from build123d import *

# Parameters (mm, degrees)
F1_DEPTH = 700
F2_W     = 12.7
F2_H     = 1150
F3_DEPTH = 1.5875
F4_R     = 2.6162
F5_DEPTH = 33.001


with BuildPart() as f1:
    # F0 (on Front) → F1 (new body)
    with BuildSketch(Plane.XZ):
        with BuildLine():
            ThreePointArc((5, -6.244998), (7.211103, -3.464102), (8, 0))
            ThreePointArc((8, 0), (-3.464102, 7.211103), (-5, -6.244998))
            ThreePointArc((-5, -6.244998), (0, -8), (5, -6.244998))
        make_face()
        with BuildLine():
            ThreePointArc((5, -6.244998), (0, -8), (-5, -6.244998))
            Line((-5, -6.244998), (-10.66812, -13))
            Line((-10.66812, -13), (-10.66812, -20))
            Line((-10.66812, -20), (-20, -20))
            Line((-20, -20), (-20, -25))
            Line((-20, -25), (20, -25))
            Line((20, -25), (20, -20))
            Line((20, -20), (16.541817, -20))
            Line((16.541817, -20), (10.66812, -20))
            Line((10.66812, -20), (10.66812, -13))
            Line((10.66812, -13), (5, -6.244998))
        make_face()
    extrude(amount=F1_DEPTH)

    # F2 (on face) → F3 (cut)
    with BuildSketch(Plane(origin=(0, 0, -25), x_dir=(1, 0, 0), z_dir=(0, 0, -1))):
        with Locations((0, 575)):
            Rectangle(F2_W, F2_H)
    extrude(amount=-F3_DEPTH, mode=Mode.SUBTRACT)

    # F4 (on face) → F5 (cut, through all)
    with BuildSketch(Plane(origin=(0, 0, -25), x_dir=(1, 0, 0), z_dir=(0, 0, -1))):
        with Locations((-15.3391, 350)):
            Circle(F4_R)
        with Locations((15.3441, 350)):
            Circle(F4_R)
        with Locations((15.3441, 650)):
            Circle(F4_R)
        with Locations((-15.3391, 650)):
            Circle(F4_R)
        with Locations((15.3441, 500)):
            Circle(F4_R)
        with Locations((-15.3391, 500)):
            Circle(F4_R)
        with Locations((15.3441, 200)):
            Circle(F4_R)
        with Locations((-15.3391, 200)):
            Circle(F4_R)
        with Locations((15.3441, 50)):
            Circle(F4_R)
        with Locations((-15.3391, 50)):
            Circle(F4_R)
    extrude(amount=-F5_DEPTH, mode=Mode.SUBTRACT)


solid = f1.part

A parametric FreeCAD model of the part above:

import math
import FreeCAD as App
import Part
import Sketcher
from FreeCAD import Vector
Q = App.Units.Quantity


def add_polygon(sketch, points):
    """Adds a closed chain of lines whose ends are joined by coincident constraints."""
    first, n = sketch.GeometryCount, len(points)
    for a, b in zip(points, points[1:] + points[:1]):
        sketch.addGeometry(Part.LineSegment(App.Vector(*a, 0), App.Vector(*b, 0)), False)
    for i in range(n):
        sketch.addConstraint(Sketcher.Constraint("Coincident", first + i, 2, first + (i + 1) % n, 1))

doc = App.newDocument("Part")
body = doc.addObject("PartDesign::Body", "Body")

# Sketch on XZ plane
sketch1 = doc.addObject("Sketcher::SketchObject", "Sketch")
body.addObject(sketch1)
sketch1.AttachmentSupport = (doc.XZ_Plane, [""])
sketch1.MapMode = "FlatFace"
sketch1.addGeometry(Part.ArcOfCircle(Part.Circle(Vector(0, 0, 0), Vector(0, 0, 1), 8), math.radians(-51), math.radians(0)), False)
sketch1.addGeometry(Part.ArcOfCircle(Part.Circle(Vector(0, 0, 0), Vector(0, 0, 1), 8), math.radians(0), math.radians(231)), False)
sketch1.addGeometry(Part.LineSegment(Vector(-5, -6, 0), Vector(-11, -13, 0)), False)
sketch1.addGeometry(Part.LineSegment(Vector(-11, -13, 0), Vector(-11, -20, 0)), False)
sketch1.addGeometry(Part.LineSegment(Vector(-11, -20, 0), Vector(-20, -20, 0)), False)
sketch1.addGeometry(Part.LineSegment(Vector(-20, -20, 0), Vector(-20, -25, 0)), False)
sketch1.addGeometry(Part.LineSegment(Vector(-20, -25, 0), Vector(20, -25, 0)), False)
sketch1.addGeometry(Part.LineSegment(Vector(20, -25, 0), Vector(20, -20, 0)), False)
sketch1.addGeometry(Part.LineSegment(Vector(20, -20, 0), Vector(11, -20, 0)), False)
sketch1.addGeometry(Part.LineSegment(Vector(11, -20, 0), Vector(11, -13, 0)), False)
sketch1.addGeometry(Part.LineSegment(Vector(11, -13, 0), Vector(5, -6, 0)), False)
sketch1.addConstraint(Sketcher.Constraint("Tangent", 0, 2, 1, 1))
sketch1.addConstraint(Sketcher.Constraint("Coincident", 1, 2, 2, 1))
sketch1.addConstraint(Sketcher.Constraint("Coincident", 2, 2, 3, 1))
sketch1.addConstraint(Sketcher.Constraint("Coincident", 3, 2, 4, 1))
sketch1.addConstraint(Sketcher.Constraint("Coincident", 4, 2, 5, 1))
sketch1.addConstraint(Sketcher.Constraint("Coincident", 5, 2, 6, 1))
sketch1.addConstraint(Sketcher.Constraint("Coincident", 6, 2, 7, 1))
sketch1.addConstraint(Sketcher.Constraint("Coincident", 7, 2, 8, 1))
sketch1.addConstraint(Sketcher.Constraint("Coincident", 8, 2, 9, 1))
sketch1.addConstraint(Sketcher.Constraint("Coincident", 9, 2, 10, 1))
sketch1.addConstraint(Sketcher.Constraint("Coincident", 10, 2, 0, 1))
sketch1.addConstraint(Sketcher.Constraint("Vertical", 3))
sketch1.addConstraint(Sketcher.Constraint("Horizontal", 4))
sketch1.addConstraint(Sketcher.Constraint("Vertical", 5))
sketch1.addConstraint(Sketcher.Constraint("Horizontal", 6))
sketch1.addConstraint(Sketcher.Constraint("Vertical", 7))
sketch1.addConstraint(Sketcher.Constraint("Horizontal", 8))
sketch1.addConstraint(Sketcher.Constraint("Vertical", 9))
sketch1.addConstraint(Sketcher.Constraint("Coincident", 0, 3, -1, 1))
sketch1.addConstraint(Sketcher.Constraint("Symmetric", 4, 2, 7, 2, -2))
sketch1.addConstraint(Sketcher.Constraint("Symmetric", 2, 2, 9, 2, -2))
sketch1.addConstraint(Sketcher.Constraint("Symmetric", 1, 2, 10, 2, -2))
sketch1.addConstraint(Sketcher.Constraint("PointOnObject", 0, 2, -1))
sketch1.addConstraint(Sketcher.Constraint("Radius", 1, 8.0))
sketch1.addConstraint(Sketcher.Constraint("DistanceX", 6, 1, 6, 2, 40.0))
sketch1.addConstraint(Sketcher.Constraint("DistanceY", 3, 2, 3, 1, 7.0))
sketch1.addConstraint(Sketcher.Constraint("DistanceY", 5, 2, 5, 1, 5.0))
sketch1.addConstraint(Sketcher.Constraint("Angle", 2, Q("-130.000002 deg")))
sketch1.addConstraint(Sketcher.Constraint("DistanceX", 1, 2, -1, 1, 5.0))
sketch1.addConstraint(Sketcher.Constraint("DistanceY", 2, 2, -1, 1, 13.0))
pad1 = doc.addObject("PartDesign::Pad", "Pad")
body.addObject(pad1)
pad1.Profile = sketch1
pad1.Length = 700

# Sketch on XY plane
sketch2 = doc.addObject("Sketcher::SketchObject", "Sketch001")
body.addObject(sketch2)
sketch2.AttachmentSupport = (doc.XY_Plane, [""])
sketch2.MapMode = "FlatFace"
sketch2.AttachmentOffset = App.Placement(Vector(0, 0, -25), App.Rotation())
add_polygon(sketch2, [(-6, -1150), (-6, 0), (6, 0), (6, -1150)])  # lines 0-3
sketch2.addConstraint(Sketcher.Constraint("Vertical", 0))
sketch2.addConstraint(Sketcher.Constraint("Horizontal", 1))
sketch2.addConstraint(Sketcher.Constraint("Vertical", 2))
sketch2.addConstraint(Sketcher.Constraint("Horizontal", 3))
sketch2.addConstraint(Sketcher.Constraint("Symmetric", 0, 2, 1, 2, -1, 1))
sketch2.addConstraint(Sketcher.Constraint("DistanceY", 0, 1, 0, 2, 1150.0))
sketch2.addConstraint(Sketcher.Constraint("DistanceX", 1, 1, 1, 2, 12.7))
pocket1 = doc.addObject("PartDesign::Pocket", "Pocket")
body.addObject(pocket1)
pocket1.Profile = sketch2
pocket1.Length = 1.5875
pocket1.Reversed = True

# Sketch on XY plane
sketch3 = doc.addObject("Sketcher::SketchObject", "Sketch002")
body.addObject(sketch3)
sketch3.AttachmentSupport = (doc.XY_Plane, [""])
sketch3.MapMode = "FlatFace"
sketch3.AttachmentOffset = App.Placement(Vector(0, 0, -25), App.Rotation())
sketch3.addGeometry(Part.Circle(Vector(-15.3, -350, 0), Vector(0, 0, 1), 2.6), False)
sketch3.addGeometry(Part.Circle(Vector(15.3, -350, 0), Vector(0, 0, 1), 2.6), False)
sketch3.addGeometry(Part.Circle(Vector(15.3, -650, 0), Vector(0, 0, 1), 2.6), False)
sketch3.addGeometry(Part.Circle(Vector(-15.3, -650, 0), Vector(0, 0, 1), 2.6), False)
sketch3.addGeometry(Part.Circle(Vector(15.3, -500, 0), Vector(0, 0, 1), 2.6), False)
sketch3.addGeometry(Part.Circle(Vector(-15.3, -500, 0), Vector(0, 0, 1), 2.6), False)
sketch3.addGeometry(Part.Circle(Vector(15.3, -200, 0), Vector(0, 0, 1), 2.6), False)
sketch3.addGeometry(Part.Circle(Vector(-15.3, -200, 0), Vector(0, 0, 1), 2.6), False)
sketch3.addGeometry(Part.Circle(Vector(15.3, -50, 0), Vector(0, 0, 1), 2.6), False)
sketch3.addGeometry(Part.Circle(Vector(-15.3, -50, 0), Vector(0, 0, 1), 2.6), False)
sketch3.addConstraint(Sketcher.Constraint("Equal", 0, 1))
sketch3.addConstraint(Sketcher.Constraint("Equal", 1, 2))
sketch3.addConstraint(Sketcher.Constraint("Equal", 2, 3))
sketch3.addConstraint(Sketcher.Constraint("Equal", 3, 4))
sketch3.addConstraint(Sketcher.Constraint("Equal", 4, 5))
sketch3.addConstraint(Sketcher.Constraint("Equal", 5, 6))
sketch3.addConstraint(Sketcher.Constraint("Equal", 6, 7))
sketch3.addConstraint(Sketcher.Constraint("Equal", 7, 8))
sketch3.addConstraint(Sketcher.Constraint("Equal", 8, 9))
sketch3.addConstraint(Sketcher.Constraint("Horizontal", 0, 3, 1, 3))
sketch3.addConstraint(Sketcher.Constraint("Horizontal", 2, 3, 3, 3))
sketch3.addConstraint(Sketcher.Constraint("Horizontal", 4, 3, 5, 3))
sketch3.addConstraint(Sketcher.Constraint("Horizontal", 6, 3, 7, 3))
sketch3.addConstraint(Sketcher.Constraint("Horizontal", 8, 3, 9, 3))
sketch3.addConstraint(Sketcher.Constraint("Vertical", 1, 3, 2, 3))
sketch3.addConstraint(Sketcher.Constraint("Vertical", 0, 3, 3, 3))
sketch3.addConstraint(Sketcher.Constraint("Vertical", 2, 3, 4, 3))
sketch3.addConstraint(Sketcher.Constraint("Vertical", 3, 3, 5, 3))
sketch3.addConstraint(Sketcher.Constraint("Vertical", 4, 3, 6, 3))
sketch3.addConstraint(Sketcher.Constraint("Vertical", 5, 3, 7, 3))
sketch3.addConstraint(Sketcher.Constraint("Vertical", 6, 3, 8, 3))
sketch3.addConstraint(Sketcher.Constraint("Vertical", 7, 3, 9, 3))
sketch3.addConstraint(Sketcher.Constraint("DistanceY", 0, 3, -1, 1, 350.0))
sketch3.addConstraint(Sketcher.Constraint("DistanceY", 2, 3, -1, 1, 650.0))
sketch3.addConstraint(Sketcher.Constraint("DistanceY", 4, 3, -1, 1, 500.0))
sketch3.addConstraint(Sketcher.Constraint("DistanceY", 6, 3, -1, 1, 200.0))
sketch3.addConstraint(Sketcher.Constraint("DistanceY", 8, 3, -1, 1, 50.0))
sketch3.addConstraint(Sketcher.Constraint("Diameter", 0, 5.2324))
sketch3.addConstraint(Sketcher.Constraint("DistanceX", 0, 3, -1, 1, 15.3391))
sketch3.addConstraint(Sketcher.Constraint("DistanceX", -1, 1, 1, 3, 15.3441))
pocket2 = doc.addObject("PartDesign::Pocket", "Pocket001")
body.addObject(pocket2)
pocket2.Profile = sketch3
pocket2.Type = "ThroughAll"
pocket2.Reversed = True

doc.recompute()
